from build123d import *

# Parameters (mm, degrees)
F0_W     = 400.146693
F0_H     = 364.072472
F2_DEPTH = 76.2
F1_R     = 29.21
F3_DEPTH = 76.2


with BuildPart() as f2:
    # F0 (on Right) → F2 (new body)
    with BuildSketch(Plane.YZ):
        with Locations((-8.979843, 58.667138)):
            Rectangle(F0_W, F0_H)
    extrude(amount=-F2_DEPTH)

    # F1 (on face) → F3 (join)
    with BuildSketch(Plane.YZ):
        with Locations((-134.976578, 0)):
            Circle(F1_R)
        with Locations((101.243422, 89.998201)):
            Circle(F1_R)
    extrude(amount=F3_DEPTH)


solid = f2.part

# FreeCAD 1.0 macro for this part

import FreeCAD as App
import Part
import Sketcher

V = App.Vector
Q = App.Units.Quantity


def add_polygon(sketch, points):
    """Adds a closed chain of lines whose ends are joined by coincident constraints."""
    first, n = sketch.GeometryCount, len(points)
    for a, b in zip(points, points[1:] + points[:1]):
        sketch.addGeometry(Part.LineSegment(App.Vector(*a, 0), App.Vector(*b, 0)), False)
    for i in range(n):
        sketch.addConstraint(Sketcher.Constraint("Coincident", first + i, 2, first + (i + 1) % n, 1))

doc = App.newDocument("Part")
body = doc.addObject("PartDesign::Body", "Body")

# Sketch on YZ plane
sketch1 = doc.addObject("Sketcher::SketchObject", "Sketch")
body.addObject(sketch1)
sketch1.AttachmentSupport = (doc.YZ_Plane, [""])
sketch1.MapMode = "FlatFace"
add_polygon(sketch1, [(-209, 241), (-209, -123), (191, -123), (191, 241)])  # lines 0-3
sketch1.addConstraint([
    Sketcher.Constraint("Vertical", 0),
    Sketcher.Constraint("Horizontal", 1),
    Sketcher.Constraint("Vertical", 2),
    Sketcher.Constraint("Horizontal", 3),
    Sketcher.Constraint("DistanceY", 0, 2, 0, 1, Q("364.072472 mm")),
    Sketcher.Constraint("DistanceX", 1, 1, 1, 2, Q("400.146693 mm")),
    Sketcher.Constraint("DistanceX", 0, 2, -1, 1, Q("209.05319 mm")),
    Sketcher.Constraint("DistanceY", 0, 2, -1, 1, Q("123.369098 mm")),
])
pad1 = doc.addObject("PartDesign::Pad", "Pad")
body.addObject(pad1)
pad1.Profile = sketch1
pad1.Length = Q("3 in")
pad1.Reversed = True

# Sketch on YZ plane
sketch2 = doc.addObject("Sketcher::SketchObject", "Sketch001")
body.addObject(sketch2)
sketch2.AttachmentSupport = (doc.YZ_Plane, [""])
sketch2.MapMode = "FlatFace"
sketch2.addGeometry([
    Part.Circle(V(-135, 0, 0), V(0, 0, 1), 29),
    Part.Circle(V(101, 90, 0), V(0, 0, 1), 29),
], False)
sketch2.addConstraint([
    Sketcher.Constraint("Equal", 0, 1),
    Sketcher.Constraint("PointOnObject", 0, 3, -1),
    Sketcher.Constraint("Diameter", 0, Q("2.3 in")),
    Sketcher.Constraint("DistanceX", 0, 3, 1, 3, Q("9.3 in")),
    Sketcher.Constraint("DistanceY", -1, 1, 1, 3, Q("89.998201 mm")),
    Sketcher.Constraint("DistanceX", -1, 1, 1, 3, Q("101.243422 mm")),
])
pad2 = doc.addObject("PartDesign::Pad", "Pad001")
body.addObject(pad2)
pad2.Profile = sketch2
pad2.Length = Q("3 in")

doc.recompute()
